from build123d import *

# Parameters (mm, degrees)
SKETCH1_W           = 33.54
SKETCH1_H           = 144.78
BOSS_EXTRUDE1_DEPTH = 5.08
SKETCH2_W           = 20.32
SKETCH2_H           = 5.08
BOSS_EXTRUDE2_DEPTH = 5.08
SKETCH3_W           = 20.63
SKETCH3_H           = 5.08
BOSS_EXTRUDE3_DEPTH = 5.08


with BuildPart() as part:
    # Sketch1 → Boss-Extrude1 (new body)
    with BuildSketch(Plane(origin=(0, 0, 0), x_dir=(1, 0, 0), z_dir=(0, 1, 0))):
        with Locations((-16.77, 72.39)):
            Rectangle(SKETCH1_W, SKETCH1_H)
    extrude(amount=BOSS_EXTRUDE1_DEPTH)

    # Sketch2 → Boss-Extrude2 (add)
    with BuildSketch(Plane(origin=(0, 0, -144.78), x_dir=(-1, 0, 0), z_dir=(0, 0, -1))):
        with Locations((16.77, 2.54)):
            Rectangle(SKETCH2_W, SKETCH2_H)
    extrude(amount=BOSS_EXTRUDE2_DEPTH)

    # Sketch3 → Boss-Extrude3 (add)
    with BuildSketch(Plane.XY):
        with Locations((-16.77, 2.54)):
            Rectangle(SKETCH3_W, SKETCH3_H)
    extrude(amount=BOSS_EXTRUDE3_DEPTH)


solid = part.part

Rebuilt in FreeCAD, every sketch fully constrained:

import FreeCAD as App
import Part
import Sketcher
Q = App.Units.Quantity

doc = App.newDocument("Part")
body = doc.addObject("PartDesign::Body", "Body")

sketch1 = doc.addObject("Sketcher::SketchObject", "Sketch")
body.addObject(sketch1)
sketch1.AttachmentSupport = (doc.XZ_Plane, [""])
sketch1.MapMode = "FlatFace"
sketch1.addGeometry(Part.LineSegment(App.Vector(-34, -145, 0), App.Vector(-34, 0, 0)), False)
sketch1.addGeometry(Part.LineSegment(App.Vector(-34, 0, 0), App.Vector(0, 0, 0)), False)
sketch1.addGeometry(Part.LineSegment(App.Vector(0, 0, 0), App.Vector(0, -145, 0)), False)
sketch1.addGeometry(Part.LineSegment(App.Vector(0, -145, 0), App.Vector(-34, -145, 0)), False)
sketch1.addConstraint(Sketcher.Constraint("Coincident", 0, 2, 1, 1))
sketch1.addConstraint(Sketcher.Constraint("Coincident", 1, 2, 2, 1))
sketch1.addConstraint(Sketcher.Constraint("Coincident", 2, 2, 3, 1))
sketch1.addConstraint(Sketcher.Constraint("Coincident", 3, 2, 0, 1))
sketch1.addConstraint(Sketcher.Constraint("Vertical", 0))
sketch1.addConstraint(Sketcher.Constraint("Horizontal", 1))
sketch1.addConstraint(Sketcher.Constraint("Vertical", 2))
sketch1.addConstraint(Sketcher.Constraint("Horizontal", 3))
sketch1.addConstraint(Sketcher.Constraint("Coincident", 1, 2, -1, 1))
sketch1.addConstraint(Sketcher.Constraint("DistanceY", 0, 1, 0, 2, Q("5.7 in")))
sketch1.addConstraint(Sketcher.Constraint("DistanceX", 1, 1, 1, 2, Q("33.54 mm")))
pad1 = doc.addObject("PartDesign::Pad", "Pad")
body.addObject(pad1)
pad1.Profile = sketch1
pad1.Length = Q("0.2 in")
pad1.Reversed = True

sketch2 = doc.addObject("Sketcher::SketchObject", "Sketch001")
body.addObject(sketch2)
sketch2.AttachmentSupport = (doc.XY_Plane, [""])
sketch2.MapMode = "FlatFace"
sketch2.AttachmentOffset = App.Placement(App.Vector(0, 0, -5.7 * 25.4), App.Rotation())
sketch2.addGeometry(Part.LineSegment(App.Vector(-7, 5, 0), App.Vector(-7, 0, 0)), False)
sketch2.addGeometry(Part.LineSegment(App.Vector(-7, 0, 0), App.Vector(-27, 0, 0)), False)
sketch2.addGeometry(Part.LineSegment(App.Vector(-27, 0, 0), App.Vector(-27, 5, 0)), False)
sketch2.addGeometry(Part.LineSegment(App.Vector(-27, 5, 0), App.Vector(-7, 5, 0)), False)
sketch2.addConstraint(Sketcher.Constraint("Coincident", 0, 2, 1, 1))
sketch2.addConstraint(Sketcher.Constraint("Coincident", 1, 2, 2, 1))
sketch2.addConstraint(Sketcher.Constraint("Coincident", 2, 2, 3, 1))
sketch2.addConstraint(Sketcher.Constraint("Coincident", 3, 2, 0, 1))
sketch2.addConstraint(Sketcher.Constraint("Vertical", 0))
sketch2.addConstraint(Sketcher.Constraint("Horizontal", 1))
sketch2.addConstraint(Sketcher.Constraint("Vertical", 2))
sketch2.addConstraint(Sketcher.Constraint("Horizontal", 3))
sketch2.addConstraint(Sketcher.Constraint("PointOnObject", 0, 2, -1))
sketch2.addConstraint(Sketcher.Constraint("DistanceX", 1, 2, 1, 1, Q("0.8 in")))
sketch2.addConstraint(Sketcher.Constraint("DistanceY", 0, 2, 0, 1, Q("0.2 in")))
sketch2.addConstraint(Sketcher.Constraint("DistanceX", 0, 2, -1, 1, Q("6.61 mm")))
pad2 = doc.addObject("PartDesign::Pad", "Pad001")
body.addObject(pad2)
pad2.Profile = sketch2
pad2.Length = Q("0.2 in")
pad2.Reversed = True

sketch3 = doc.addObject("Sketcher::SketchObject", "Sketch002")
body.addObject(sketch3)
sketch3.AttachmentSupport = (doc.XY_Plane, [""])
sketch3.MapMode = "FlatFace"
sketch3.addGeometry(Part.LineSegment(App.Vector(-27, 5, 0), App.Vector(-27, 0, 0)), False)
sketch3.addGeometry(Part.LineSegment(App.Vector(-27, 0, 0), App.Vector(-6, 0, 0)), False)
sketch3.addGeometry(Part.LineSegment(App.Vector(-6, 0, 0), App.Vector(-6, 5, 0)), False)
sketch3.addGeometry(Part.LineSegment(App.Vector(-6, 5, 0), App.Vector(-27, 5, 0)), False)
sketch3.addConstraint(Sketcher.Constraint("Coincident", 0, 2, 1, 1))
sketch3.addConstraint(Sketcher.Constraint("Coincident", 1, 2, 2, 1))
sketch3.addConstraint(Sketcher.Constraint("Coincident", 2, 2, 3, 1))
sketch3.addConstraint(Sketcher.Constraint("Coincident", 3, 2, 0, 1))
sketch3.addConstraint(Sketcher.Constraint("Vertical", 0))
sketch3.addConstraint(Sketcher.Constraint("Horizontal", 1))
sketch3.addConstraint(Sketcher.Constraint("Vertical", 2))
sketch3.addConstraint(Sketcher.Constraint("Horizontal", 3))
sketch3.addConstraint(Sketcher.Constraint("PointOnObject", 0, 2, -1))
sketch3.addConstraint(Sketcher.Constraint("DistanceY", 0, 2, 0, 1, Q("0.2 in")))
sketch3.addConstraint(Sketcher.Constraint("DistanceX", 1, 1, 1, 2, Q("20.63 mm")))
sketch3.addConstraint(Sketcher.Constraint("DistanceX", 0, 2, -1, 1, Q("27.085 mm")))
pad3 = doc.addObject("PartDesign::Pad", "Pad002")
body.addObject(pad3)
pad3.Profile = sketch3
pad3.Length = Q("0.2 in")

doc.recompute()
